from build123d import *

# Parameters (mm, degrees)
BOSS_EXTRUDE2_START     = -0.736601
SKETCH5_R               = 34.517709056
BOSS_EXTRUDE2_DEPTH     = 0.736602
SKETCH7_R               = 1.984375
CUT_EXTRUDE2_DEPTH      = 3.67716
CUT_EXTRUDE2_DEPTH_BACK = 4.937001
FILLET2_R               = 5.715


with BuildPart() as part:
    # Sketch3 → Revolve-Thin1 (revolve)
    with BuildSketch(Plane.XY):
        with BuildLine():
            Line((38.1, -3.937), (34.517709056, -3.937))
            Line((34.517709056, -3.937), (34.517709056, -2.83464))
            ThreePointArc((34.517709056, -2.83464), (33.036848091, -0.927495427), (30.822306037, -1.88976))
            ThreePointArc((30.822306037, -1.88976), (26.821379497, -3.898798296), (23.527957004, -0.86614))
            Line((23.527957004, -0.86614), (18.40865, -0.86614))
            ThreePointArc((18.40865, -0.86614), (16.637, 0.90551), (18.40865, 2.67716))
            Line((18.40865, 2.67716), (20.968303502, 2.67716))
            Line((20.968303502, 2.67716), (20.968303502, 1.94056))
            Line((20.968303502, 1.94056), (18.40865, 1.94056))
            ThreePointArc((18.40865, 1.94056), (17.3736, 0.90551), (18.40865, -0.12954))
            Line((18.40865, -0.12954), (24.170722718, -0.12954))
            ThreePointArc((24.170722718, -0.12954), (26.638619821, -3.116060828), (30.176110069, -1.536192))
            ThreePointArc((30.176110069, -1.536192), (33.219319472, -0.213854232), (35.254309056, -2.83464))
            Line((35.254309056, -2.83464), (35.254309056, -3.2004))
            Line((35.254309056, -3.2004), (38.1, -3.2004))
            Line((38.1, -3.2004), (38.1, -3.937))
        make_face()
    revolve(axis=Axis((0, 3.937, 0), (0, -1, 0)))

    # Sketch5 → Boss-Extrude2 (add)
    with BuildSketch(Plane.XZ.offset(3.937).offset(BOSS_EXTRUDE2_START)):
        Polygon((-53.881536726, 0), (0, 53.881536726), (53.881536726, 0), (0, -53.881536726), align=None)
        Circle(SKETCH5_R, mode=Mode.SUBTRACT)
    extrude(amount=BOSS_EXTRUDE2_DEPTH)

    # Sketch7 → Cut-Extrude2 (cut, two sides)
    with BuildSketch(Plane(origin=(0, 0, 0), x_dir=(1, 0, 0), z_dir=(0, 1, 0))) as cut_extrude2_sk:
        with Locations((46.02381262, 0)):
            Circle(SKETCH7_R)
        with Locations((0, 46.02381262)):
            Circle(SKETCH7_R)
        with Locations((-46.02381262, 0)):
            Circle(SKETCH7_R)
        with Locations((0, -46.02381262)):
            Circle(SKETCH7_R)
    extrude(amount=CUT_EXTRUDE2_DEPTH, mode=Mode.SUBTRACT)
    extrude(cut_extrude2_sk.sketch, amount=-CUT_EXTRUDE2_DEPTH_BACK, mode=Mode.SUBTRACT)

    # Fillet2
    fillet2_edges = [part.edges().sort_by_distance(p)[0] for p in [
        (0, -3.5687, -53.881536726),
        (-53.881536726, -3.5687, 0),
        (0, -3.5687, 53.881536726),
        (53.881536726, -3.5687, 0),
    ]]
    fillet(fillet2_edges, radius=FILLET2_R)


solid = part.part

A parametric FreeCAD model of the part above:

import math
import FreeCAD as App
import Part
import Sketcher

V = App.Vector
Q = App.Units.Quantity


def edges_at(feature, points):
    """Names of the edges that pass closest to the given points."""
    edges = feature.Shape.Edges
    near = lambda p: min(range(len(edges)), key=lambda i: edges[i].distToShape(Part.Vertex(*p))[0])
    return sorted({f"Edge{near(p) + 1}" for p in points})


def add_polygon(sketch, points):
    """Adds a closed chain of lines whose ends are joined by coincident constraints."""
    first, n = sketch.GeometryCount, len(points)
    for a, b in zip(points, points[1:] + points[:1]):
        sketch.addGeometry(Part.LineSegment(App.Vector(*a, 0), App.Vector(*b, 0)), False)
    for i in range(n):
        sketch.addConstraint(Sketcher.Constraint("Coincident", first + i, 2, first + (i + 1) % n, 1))

doc = App.newDocument("Part")
body = doc.addObject("PartDesign::Body", "Body")

sketch1 = body.newObject("Sketcher::SketchObject", "Sketch")
sketch1.AttachmentSupport = (doc.getObject("XY_Plane"), [""])
sketch1.MapMode = "FlatFace"
sketch1.addGeometry(Part.LineSegment(V(34.52, -3.94, 0), V(38.1, -3.94, 0)), False)
sketch1.addGeometry(Part.LineSegment(V(38.1, -3.94, 0), V(38.1, -3.2, 0)), False)
sketch1.addGeometry(Part.LineSegment(V(38.1, -3.2, 0), V(35.25, -3.2, 0)), False)
sketch1.addGeometry(Part.LineSegment(V(35.25, -3.2, 0), V(35.25, -2.83, 0)), False)
sketch1.addGeometry(Part.ArcOfCircle(Part.Circle(V(32.55, -2.83, 0), V(0, 0, 1), 2.71), math.radians(0), math.radians(151)), False)
sketch1.addGeometry(Part.ArcOfCircle(Part.Circle(V(27.37, 0, 0), V(0, 0, 1), 3.2), math.radians(-178), math.radians(-29)), False)
sketch1.addGeometry(Part.LineSegment(V(24.17, -0.13, 0), V(18.41, -0.13, 0)), False)
sketch1.addGeometry(Part.ArcOfCircle(Part.Circle(V(18.41, 0.91, 0), V(0, 0, 1), 1.04), math.radians(90), math.radians(270)), False)
sketch1.addGeometry(Part.LineSegment(V(18.41, 1.94, 0), V(20.97, 1.94, 0)), False)
sketch1.addGeometry(Part.LineSegment(V(20.97, 1.94, 0), V(20.97, 2.68, 0)), False)
sketch1.addGeometry(Part.LineSegment(V(20.97, 2.68, 0), V(18.41, 2.68, 0)), False)
sketch1.addGeometry(Part.ArcOfCircle(Part.Circle(V(18.41, 0.91, 0), V(0, 0, 1), 1.77), math.radians(90), math.radians(270)), False)
sketch1.addGeometry(Part.LineSegment(V(18.41, -0.87, 0), V(23.53, -0.87, 0)), False)
sketch1.addGeometry(Part.ArcOfCircle(Part.Circle(V(27.37, 0, 0), V(0, 0, 1), 3.94), math.radians(-167), math.radians(-29)), False)
sketch1.addGeometry(Part.ArcOfCircle(Part.Circle(V(32.55, -2.83, 0), V(0, 0, 1), 1.97), math.radians(0), math.radians(151)), False)
sketch1.addGeometry(Part.LineSegment(V(34.52, -2.83, 0), V(34.52, -3.94, 0)), False)
sketch1.addConstraint(Sketcher.Constraint("Coincident", 0, 2, 1, 1))
sketch1.addConstraint(Sketcher.Constraint("Coincident", 1, 2, 2, 1))
sketch1.addConstraint(Sketcher.Constraint("Coincident", 2, 2, 3, 1))
sketch1.addConstraint(Sketcher.Constraint("Tangent", 3, 2, 4, 1))
sketch1.addConstraint(Sketcher.Constraint("Tangent", 4, 2, 5, 2))
sketch1.addConstraint(Sketcher.Constraint("Coincident", 5, 1, 6, 1))
sketch1.addConstraint(Sketcher.Constraint("Tangent", 6, 2, 7, 2))
sketch1.addConstraint(Sketcher.Constraint("Tangent", 7, 1, 8, 1))
sketch1.addConstraint(Sketcher.Constraint("Coincident", 8, 2, 9, 1))
sketch1.addConstraint(Sketcher.Constraint("Coincident", 9, 2, 10, 1))
sketch1.addConstraint(Sketcher.Constraint("Tangent", 10, 2, 11, 1))
sketch1.addConstraint(Sketcher.Constraint("Tangent", 11, 2, 12, 1))
sketch1.addConstraint(Sketcher.Constraint("Coincident", 12, 2, 13, 1))
sketch1.addConstraint(Sketcher.Constraint("Tangent", 13, 2, 14, 2))
sketch1.addConstraint(Sketcher.Constraint("Tangent", 14, 1, 15, 1))
sketch1.addConstraint(Sketcher.Constraint("Coincident", 15, 2, 0, 1))
sketch1.addConstraint(Sketcher.Constraint("Horizontal", 0))
sketch1.addConstraint(Sketcher.Constraint("Vertical", 1))
sketch1.addConstraint(Sketcher.Constraint("Horizontal", 2))
sketch1.addConstraint(Sketcher.Constraint("Vertical", 3))
sketch1.addConstraint(Sketcher.Constraint("Horizontal", 6))
sketch1.addConstraint(Sketcher.Constraint("Horizontal", 8))
sketch1.addConstraint(Sketcher.Constraint("Vertical", 9))
sketch1.addConstraint(Sketcher.Constraint("Horizontal", 10))
sketch1.addConstraint(Sketcher.Constraint("Horizontal", 12))
sketch1.addConstraint(Sketcher.Constraint("Vertical", 15))
sketch1.addConstraint(Sketcher.Constraint("Coincident", 11, 3, 7, 3))
sketch1.addConstraint(Sketcher.Constraint("Coincident", 13, 3, 5, 3))
sketch1.addConstraint(Sketcher.Constraint("Coincident", 14, 3, 4, 3))
sketch1.addConstraint(Sketcher.Constraint("PointOnObject", 5, 3, -1))
sketch1.addConstraint(Sketcher.Constraint("Equal", 1, 9))
sketch1.addConstraint(Sketcher.Constraint("Radius", 5, Q("0.126 in")))
sketch1.addConstraint(Sketcher.Constraint("Radius", 13, Q("0.155 in")))
sketch1.addConstraint(Sketcher.Constraint("DistanceX", -1, 1, 0, 2, Q("1.5 in")))
sketch1.addConstraint(Sketcher.Constraint("Radius", 4, Q("0.1065 in")))
sketch1.addConstraint(Sketcher.Constraint("DistanceY", 1, 1, 1, 2, Q("0.029 in")))
sketch1.addConstraint(Sketcher.Constraint("DistanceY", 3, 1, 3, 2, Q("0.0144 in")))
sketch1.addConstraint(Sketcher.Constraint("DistanceY", 0, 2, -1, 1, Q("0.155 in")))
sketch1.addConstraint(Sketcher.Constraint("Radius", 7, Q("1.03505 mm")))
sketch1.addConstraint(Sketcher.Constraint("DistanceX", -1, 1, 5, 3, Q("1.0775 in")))
sketch1.addConstraint(Sketcher.Constraint("DistanceY", 5, 1, -1, 1, Q("0.0051 in")))
sketch1.addConstraint(Sketcher.Constraint("DistanceX", 6, 2, 6, 1, Q("5.762073 mm")))
sketch1.addConstraint(Sketcher.Constraint("DistanceX", 8, 1, 8, 2, Q("2.559654 mm")))
revolution = body.newObject("PartDesign::Revolution", "Revolution")
revolution.Profile = sketch1
revolution.ReferenceAxis = (sketch1, ["V_Axis"])
revolution.Angle = 360

sketch2 = body.newObject("Sketcher::SketchObject", "Sketch001")
sketch2.AttachmentSupport = (doc.getObject("XZ_Plane"), [""])
sketch2.MapMode = "FlatFace"
sketch2.AttachmentOffset = App.Placement(V(0, 0, 0.126 * 25.4), App.Rotation())
add_polygon(sketch2, [(0, 54), (-54, 0), (0, -54), (54, 0)])
sketch2.addGeometry(Part.Circle(V(0, 0, 0), V(0, 0, 1), 35), False)
sketch2.addConstraint(Sketcher.Constraint("Coincident", 4, 3, -1, 1))
sketch2.addConstraint(Sketcher.Constraint("Symmetric", 0, 2, 2, 2, -1, 1))
sketch2.addConstraint(Sketcher.Constraint("Symmetric", 1, 2, 3, 2, -1, 1))
sketch2.addConstraint(Sketcher.Constraint("PointOnObject", 0, 2, -1))
sketch2.addConstraint(Sketcher.Constraint("PointOnObject", 1, 2, -2))
sketch2.addConstraint(Sketcher.Constraint("Perpendicular", 0, 1))
sketch2.addConstraint(Sketcher.Constraint("Distance", 0, Q("3 in")))
sketch2.addConstraint(Sketcher.Constraint("Diameter", 4, Q("69.035418 mm")))
pad1 = body.newObject("PartDesign::Pad", "Pad")
pad1.Profile = sketch2
pad1.Length = Q("0.0290001 in")

sketch3 = body.newObject("Sketcher::SketchObject", "Sketch002")
sketch3.AttachmentSupport = (doc.getObject("XZ_Plane"), [""])
sketch3.MapMode = "FlatFace"
sketch3.addGeometry(Part.Circle(V(46, 0, 0), V(0, 0, 1), 2), False)
sketch3.addGeometry(Part.Circle(V(0, -46, 0), V(0, 0, 1), 2), False)
sketch3.addGeometry(Part.Circle(V(-46, 0, 0), V(0, 0, 1), 2), False)
sketch3.addGeometry(Part.Circle(V(0, 46, 0), V(0, 0, 1), 2), False)
sketch3.addConstraint(Sketcher.Constraint("Equal", 0, 1))
sketch3.addConstraint(Sketcher.Constraint("Equal", 1, 2))
sketch3.addConstraint(Sketcher.Constraint("Equal", 2, 3))
sketch3.addConstraint(Sketcher.Constraint("Symmetric", 0, 3, 2, 3, -1, 1))
sketch3.addConstraint(Sketcher.Constraint("Symmetric", 1, 3, 3, 3, -1, 1))
sketch3.addConstraint(Sketcher.Constraint("PointOnObject", 0, 3, -1))
sketch3.addConstraint(Sketcher.Constraint("PointOnObject", 1, 3, -2))
sketch3.addConstraint(Sketcher.Constraint("Diameter", 0, Q("0.15625 in")))
sketch3.addConstraint(Sketcher.Constraint("DistanceX", -1, 1, 0, 3, Q("46.023813 mm")))
sketch3.addConstraint(Sketcher.Constraint("DistanceY", 1, 3, -1, 1, Q("46.023813 mm")))
pocket1 = body.newObject("PartDesign::Pocket", "Pocket")
pocket1.Profile = sketch3
pocket1.Type = "ThroughAll"
pocket1.Midplane = True
doc.recompute()

fillet = body.newObject("PartDesign::Fillet", "Fillet")
fillet.Base = (pocket1, edges_at(pocket1, [
    (0, -3.569, -53.882),
    (-53.882, -3.569, 0),
    (0, -3.569, 53.882),
    (53.882, -3.569, 0),
]))
fillet.Radius = Q("0.225 in")

doc.recompute()
